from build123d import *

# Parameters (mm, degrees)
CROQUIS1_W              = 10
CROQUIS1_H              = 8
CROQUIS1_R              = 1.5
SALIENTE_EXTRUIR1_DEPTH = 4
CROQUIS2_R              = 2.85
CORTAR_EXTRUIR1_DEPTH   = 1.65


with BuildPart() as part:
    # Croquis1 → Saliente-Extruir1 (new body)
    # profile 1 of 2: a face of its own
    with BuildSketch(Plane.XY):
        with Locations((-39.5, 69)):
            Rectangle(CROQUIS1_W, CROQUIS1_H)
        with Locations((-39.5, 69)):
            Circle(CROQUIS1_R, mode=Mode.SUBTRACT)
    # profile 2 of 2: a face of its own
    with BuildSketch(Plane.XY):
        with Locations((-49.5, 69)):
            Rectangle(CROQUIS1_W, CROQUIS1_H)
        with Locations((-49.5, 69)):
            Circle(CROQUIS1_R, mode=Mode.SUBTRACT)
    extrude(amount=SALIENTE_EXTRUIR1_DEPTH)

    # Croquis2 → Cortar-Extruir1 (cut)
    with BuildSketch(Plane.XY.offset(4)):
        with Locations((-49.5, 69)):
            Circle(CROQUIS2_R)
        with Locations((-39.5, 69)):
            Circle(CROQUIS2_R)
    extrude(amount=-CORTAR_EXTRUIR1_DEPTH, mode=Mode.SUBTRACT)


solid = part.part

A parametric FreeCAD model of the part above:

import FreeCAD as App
import Part
import Sketcher

V = App.Vector
Q = App.Units.Quantity


def add_polygon(sketch, points):
    """Adds a closed chain of lines whose ends are joined by coincident constraints."""
    first, n = sketch.GeometryCount, len(points)
    for a, b in zip(points, points[1:] + points[:1]):
        sketch.addGeometry(Part.LineSegment(App.Vector(*a, 0), App.Vector(*b, 0)), False)
    for i in range(n):
        sketch.addConstraint(Sketcher.Constraint("Coincident", first + i, 2, first + (i + 1) % n, 1))

doc = App.newDocument("Part")
body = doc.addObject("PartDesign::Body", "Body")

# Sketch on XY plane
sketch1 = body.newObject("Sketcher::SketchObject", "Sketch")
sketch1.AttachmentSupport = (doc.getObject("XY_Plane"), [""])
sketch1.MapMode = "FlatFace"
add_polygon(sketch1, [(-34.5, 65), (-34.5, 73), (-54.5, 73), (-54.5, 65)])  # lines 0-3
sketch1.addGeometry(Part.Circle(V(-39.5, 69, 0), V(0, 0, 1), 1.5), False)  # 4
sketch1.addGeometry(Part.Circle(V(-49.5, 69, 0), V(0, 0, 1), 1.5), False)  # 5
sketch1.addConstraint(Sketcher.Constraint("Vertical", 0))
sketch1.addConstraint(Sketcher.Constraint("Horizontal", 1))
sketch1.addConstraint(Sketcher.Constraint("Vertical", 2))
sketch1.addConstraint(Sketcher.Constraint("Horizontal", 3))
sketch1.addConstraint(Sketcher.Constraint("Equal", 4, 5))
sketch1.addConstraint(Sketcher.Constraint("Horizontal", 4, 3, 5, 3))
sketch1.addConstraint(Sketcher.Constraint("Diameter", 4, Q("3 mm")))
sketch1.addConstraint(Sketcher.Constraint("DistanceX", 1, 2, 1, 1, Q("20 mm")))
sketch1.addConstraint(Sketcher.Constraint("DistanceY", 0, 1, 0, 2, Q("8 mm")))
sketch1.addConstraint(Sketcher.Constraint("DistanceY", -1, 1, 4, 3, Q("69 mm")))
sketch1.addConstraint(Sketcher.Constraint("DistanceY", -1, 1, 0, 2, Q("73 mm")))
sketch1.addConstraint(Sketcher.Constraint("DistanceX", 5, 3, 4, 3, Q("10 mm")))
sketch1.addConstraint(Sketcher.Constraint("DistanceX", 4, 3, 0, 2, Q("5 mm")))
sketch1.addConstraint(Sketcher.Constraint("DistanceX", 4, 3, -1, 1, Q("39.5 mm")))
pad1 = body.newObject("PartDesign::Pad", "Pad")
pad1.Profile = sketch1
pad1.Length = 4

# Sketch on XY plane
sketch2 = body.newObject("Sketcher::SketchObject", "Sketch001")
sketch2.AttachmentSupport = (doc.getObject("XY_Plane"), [""])
sketch2.MapMode = "FlatFace"
sketch2.AttachmentOffset = App.Placement(V(0, 0, 4), App.Rotation())
sketch2.addGeometry(Part.Circle(V(-49.5, 69, 0), V(0, 0, 1), 2.85), False)
sketch2.addGeometry(Part.Circle(V(-39.5, 69, 0), V(0, 0, 1), 2.85), False)
sketch2.addConstraint(Sketcher.Constraint("Equal", 0, 1))
sketch2.addConstraint(Sketcher.Constraint("Horizontal", 0, 3, 1, 3))
sketch2.addConstraint(Sketcher.Constraint("Diameter", 0, Q("5.7 mm")))
sketch2.addConstraint(Sketcher.Constraint("DistanceY", -1, 1, 0, 3, Q("69 mm")))
sketch2.addConstraint(Sketcher.Constraint("DistanceX", 0, 3, 1, 3, Q("10 mm")))
sketch2.addConstraint(Sketcher.Constraint("DistanceX", 0, 3, -1, 1, Q("49.5 mm")))
pocket1 = body.newObject("PartDesign::Pocket", "Pocket")
pocket1.Profile = sketch2
pocket1.Length = 1.65

doc.recompute()
